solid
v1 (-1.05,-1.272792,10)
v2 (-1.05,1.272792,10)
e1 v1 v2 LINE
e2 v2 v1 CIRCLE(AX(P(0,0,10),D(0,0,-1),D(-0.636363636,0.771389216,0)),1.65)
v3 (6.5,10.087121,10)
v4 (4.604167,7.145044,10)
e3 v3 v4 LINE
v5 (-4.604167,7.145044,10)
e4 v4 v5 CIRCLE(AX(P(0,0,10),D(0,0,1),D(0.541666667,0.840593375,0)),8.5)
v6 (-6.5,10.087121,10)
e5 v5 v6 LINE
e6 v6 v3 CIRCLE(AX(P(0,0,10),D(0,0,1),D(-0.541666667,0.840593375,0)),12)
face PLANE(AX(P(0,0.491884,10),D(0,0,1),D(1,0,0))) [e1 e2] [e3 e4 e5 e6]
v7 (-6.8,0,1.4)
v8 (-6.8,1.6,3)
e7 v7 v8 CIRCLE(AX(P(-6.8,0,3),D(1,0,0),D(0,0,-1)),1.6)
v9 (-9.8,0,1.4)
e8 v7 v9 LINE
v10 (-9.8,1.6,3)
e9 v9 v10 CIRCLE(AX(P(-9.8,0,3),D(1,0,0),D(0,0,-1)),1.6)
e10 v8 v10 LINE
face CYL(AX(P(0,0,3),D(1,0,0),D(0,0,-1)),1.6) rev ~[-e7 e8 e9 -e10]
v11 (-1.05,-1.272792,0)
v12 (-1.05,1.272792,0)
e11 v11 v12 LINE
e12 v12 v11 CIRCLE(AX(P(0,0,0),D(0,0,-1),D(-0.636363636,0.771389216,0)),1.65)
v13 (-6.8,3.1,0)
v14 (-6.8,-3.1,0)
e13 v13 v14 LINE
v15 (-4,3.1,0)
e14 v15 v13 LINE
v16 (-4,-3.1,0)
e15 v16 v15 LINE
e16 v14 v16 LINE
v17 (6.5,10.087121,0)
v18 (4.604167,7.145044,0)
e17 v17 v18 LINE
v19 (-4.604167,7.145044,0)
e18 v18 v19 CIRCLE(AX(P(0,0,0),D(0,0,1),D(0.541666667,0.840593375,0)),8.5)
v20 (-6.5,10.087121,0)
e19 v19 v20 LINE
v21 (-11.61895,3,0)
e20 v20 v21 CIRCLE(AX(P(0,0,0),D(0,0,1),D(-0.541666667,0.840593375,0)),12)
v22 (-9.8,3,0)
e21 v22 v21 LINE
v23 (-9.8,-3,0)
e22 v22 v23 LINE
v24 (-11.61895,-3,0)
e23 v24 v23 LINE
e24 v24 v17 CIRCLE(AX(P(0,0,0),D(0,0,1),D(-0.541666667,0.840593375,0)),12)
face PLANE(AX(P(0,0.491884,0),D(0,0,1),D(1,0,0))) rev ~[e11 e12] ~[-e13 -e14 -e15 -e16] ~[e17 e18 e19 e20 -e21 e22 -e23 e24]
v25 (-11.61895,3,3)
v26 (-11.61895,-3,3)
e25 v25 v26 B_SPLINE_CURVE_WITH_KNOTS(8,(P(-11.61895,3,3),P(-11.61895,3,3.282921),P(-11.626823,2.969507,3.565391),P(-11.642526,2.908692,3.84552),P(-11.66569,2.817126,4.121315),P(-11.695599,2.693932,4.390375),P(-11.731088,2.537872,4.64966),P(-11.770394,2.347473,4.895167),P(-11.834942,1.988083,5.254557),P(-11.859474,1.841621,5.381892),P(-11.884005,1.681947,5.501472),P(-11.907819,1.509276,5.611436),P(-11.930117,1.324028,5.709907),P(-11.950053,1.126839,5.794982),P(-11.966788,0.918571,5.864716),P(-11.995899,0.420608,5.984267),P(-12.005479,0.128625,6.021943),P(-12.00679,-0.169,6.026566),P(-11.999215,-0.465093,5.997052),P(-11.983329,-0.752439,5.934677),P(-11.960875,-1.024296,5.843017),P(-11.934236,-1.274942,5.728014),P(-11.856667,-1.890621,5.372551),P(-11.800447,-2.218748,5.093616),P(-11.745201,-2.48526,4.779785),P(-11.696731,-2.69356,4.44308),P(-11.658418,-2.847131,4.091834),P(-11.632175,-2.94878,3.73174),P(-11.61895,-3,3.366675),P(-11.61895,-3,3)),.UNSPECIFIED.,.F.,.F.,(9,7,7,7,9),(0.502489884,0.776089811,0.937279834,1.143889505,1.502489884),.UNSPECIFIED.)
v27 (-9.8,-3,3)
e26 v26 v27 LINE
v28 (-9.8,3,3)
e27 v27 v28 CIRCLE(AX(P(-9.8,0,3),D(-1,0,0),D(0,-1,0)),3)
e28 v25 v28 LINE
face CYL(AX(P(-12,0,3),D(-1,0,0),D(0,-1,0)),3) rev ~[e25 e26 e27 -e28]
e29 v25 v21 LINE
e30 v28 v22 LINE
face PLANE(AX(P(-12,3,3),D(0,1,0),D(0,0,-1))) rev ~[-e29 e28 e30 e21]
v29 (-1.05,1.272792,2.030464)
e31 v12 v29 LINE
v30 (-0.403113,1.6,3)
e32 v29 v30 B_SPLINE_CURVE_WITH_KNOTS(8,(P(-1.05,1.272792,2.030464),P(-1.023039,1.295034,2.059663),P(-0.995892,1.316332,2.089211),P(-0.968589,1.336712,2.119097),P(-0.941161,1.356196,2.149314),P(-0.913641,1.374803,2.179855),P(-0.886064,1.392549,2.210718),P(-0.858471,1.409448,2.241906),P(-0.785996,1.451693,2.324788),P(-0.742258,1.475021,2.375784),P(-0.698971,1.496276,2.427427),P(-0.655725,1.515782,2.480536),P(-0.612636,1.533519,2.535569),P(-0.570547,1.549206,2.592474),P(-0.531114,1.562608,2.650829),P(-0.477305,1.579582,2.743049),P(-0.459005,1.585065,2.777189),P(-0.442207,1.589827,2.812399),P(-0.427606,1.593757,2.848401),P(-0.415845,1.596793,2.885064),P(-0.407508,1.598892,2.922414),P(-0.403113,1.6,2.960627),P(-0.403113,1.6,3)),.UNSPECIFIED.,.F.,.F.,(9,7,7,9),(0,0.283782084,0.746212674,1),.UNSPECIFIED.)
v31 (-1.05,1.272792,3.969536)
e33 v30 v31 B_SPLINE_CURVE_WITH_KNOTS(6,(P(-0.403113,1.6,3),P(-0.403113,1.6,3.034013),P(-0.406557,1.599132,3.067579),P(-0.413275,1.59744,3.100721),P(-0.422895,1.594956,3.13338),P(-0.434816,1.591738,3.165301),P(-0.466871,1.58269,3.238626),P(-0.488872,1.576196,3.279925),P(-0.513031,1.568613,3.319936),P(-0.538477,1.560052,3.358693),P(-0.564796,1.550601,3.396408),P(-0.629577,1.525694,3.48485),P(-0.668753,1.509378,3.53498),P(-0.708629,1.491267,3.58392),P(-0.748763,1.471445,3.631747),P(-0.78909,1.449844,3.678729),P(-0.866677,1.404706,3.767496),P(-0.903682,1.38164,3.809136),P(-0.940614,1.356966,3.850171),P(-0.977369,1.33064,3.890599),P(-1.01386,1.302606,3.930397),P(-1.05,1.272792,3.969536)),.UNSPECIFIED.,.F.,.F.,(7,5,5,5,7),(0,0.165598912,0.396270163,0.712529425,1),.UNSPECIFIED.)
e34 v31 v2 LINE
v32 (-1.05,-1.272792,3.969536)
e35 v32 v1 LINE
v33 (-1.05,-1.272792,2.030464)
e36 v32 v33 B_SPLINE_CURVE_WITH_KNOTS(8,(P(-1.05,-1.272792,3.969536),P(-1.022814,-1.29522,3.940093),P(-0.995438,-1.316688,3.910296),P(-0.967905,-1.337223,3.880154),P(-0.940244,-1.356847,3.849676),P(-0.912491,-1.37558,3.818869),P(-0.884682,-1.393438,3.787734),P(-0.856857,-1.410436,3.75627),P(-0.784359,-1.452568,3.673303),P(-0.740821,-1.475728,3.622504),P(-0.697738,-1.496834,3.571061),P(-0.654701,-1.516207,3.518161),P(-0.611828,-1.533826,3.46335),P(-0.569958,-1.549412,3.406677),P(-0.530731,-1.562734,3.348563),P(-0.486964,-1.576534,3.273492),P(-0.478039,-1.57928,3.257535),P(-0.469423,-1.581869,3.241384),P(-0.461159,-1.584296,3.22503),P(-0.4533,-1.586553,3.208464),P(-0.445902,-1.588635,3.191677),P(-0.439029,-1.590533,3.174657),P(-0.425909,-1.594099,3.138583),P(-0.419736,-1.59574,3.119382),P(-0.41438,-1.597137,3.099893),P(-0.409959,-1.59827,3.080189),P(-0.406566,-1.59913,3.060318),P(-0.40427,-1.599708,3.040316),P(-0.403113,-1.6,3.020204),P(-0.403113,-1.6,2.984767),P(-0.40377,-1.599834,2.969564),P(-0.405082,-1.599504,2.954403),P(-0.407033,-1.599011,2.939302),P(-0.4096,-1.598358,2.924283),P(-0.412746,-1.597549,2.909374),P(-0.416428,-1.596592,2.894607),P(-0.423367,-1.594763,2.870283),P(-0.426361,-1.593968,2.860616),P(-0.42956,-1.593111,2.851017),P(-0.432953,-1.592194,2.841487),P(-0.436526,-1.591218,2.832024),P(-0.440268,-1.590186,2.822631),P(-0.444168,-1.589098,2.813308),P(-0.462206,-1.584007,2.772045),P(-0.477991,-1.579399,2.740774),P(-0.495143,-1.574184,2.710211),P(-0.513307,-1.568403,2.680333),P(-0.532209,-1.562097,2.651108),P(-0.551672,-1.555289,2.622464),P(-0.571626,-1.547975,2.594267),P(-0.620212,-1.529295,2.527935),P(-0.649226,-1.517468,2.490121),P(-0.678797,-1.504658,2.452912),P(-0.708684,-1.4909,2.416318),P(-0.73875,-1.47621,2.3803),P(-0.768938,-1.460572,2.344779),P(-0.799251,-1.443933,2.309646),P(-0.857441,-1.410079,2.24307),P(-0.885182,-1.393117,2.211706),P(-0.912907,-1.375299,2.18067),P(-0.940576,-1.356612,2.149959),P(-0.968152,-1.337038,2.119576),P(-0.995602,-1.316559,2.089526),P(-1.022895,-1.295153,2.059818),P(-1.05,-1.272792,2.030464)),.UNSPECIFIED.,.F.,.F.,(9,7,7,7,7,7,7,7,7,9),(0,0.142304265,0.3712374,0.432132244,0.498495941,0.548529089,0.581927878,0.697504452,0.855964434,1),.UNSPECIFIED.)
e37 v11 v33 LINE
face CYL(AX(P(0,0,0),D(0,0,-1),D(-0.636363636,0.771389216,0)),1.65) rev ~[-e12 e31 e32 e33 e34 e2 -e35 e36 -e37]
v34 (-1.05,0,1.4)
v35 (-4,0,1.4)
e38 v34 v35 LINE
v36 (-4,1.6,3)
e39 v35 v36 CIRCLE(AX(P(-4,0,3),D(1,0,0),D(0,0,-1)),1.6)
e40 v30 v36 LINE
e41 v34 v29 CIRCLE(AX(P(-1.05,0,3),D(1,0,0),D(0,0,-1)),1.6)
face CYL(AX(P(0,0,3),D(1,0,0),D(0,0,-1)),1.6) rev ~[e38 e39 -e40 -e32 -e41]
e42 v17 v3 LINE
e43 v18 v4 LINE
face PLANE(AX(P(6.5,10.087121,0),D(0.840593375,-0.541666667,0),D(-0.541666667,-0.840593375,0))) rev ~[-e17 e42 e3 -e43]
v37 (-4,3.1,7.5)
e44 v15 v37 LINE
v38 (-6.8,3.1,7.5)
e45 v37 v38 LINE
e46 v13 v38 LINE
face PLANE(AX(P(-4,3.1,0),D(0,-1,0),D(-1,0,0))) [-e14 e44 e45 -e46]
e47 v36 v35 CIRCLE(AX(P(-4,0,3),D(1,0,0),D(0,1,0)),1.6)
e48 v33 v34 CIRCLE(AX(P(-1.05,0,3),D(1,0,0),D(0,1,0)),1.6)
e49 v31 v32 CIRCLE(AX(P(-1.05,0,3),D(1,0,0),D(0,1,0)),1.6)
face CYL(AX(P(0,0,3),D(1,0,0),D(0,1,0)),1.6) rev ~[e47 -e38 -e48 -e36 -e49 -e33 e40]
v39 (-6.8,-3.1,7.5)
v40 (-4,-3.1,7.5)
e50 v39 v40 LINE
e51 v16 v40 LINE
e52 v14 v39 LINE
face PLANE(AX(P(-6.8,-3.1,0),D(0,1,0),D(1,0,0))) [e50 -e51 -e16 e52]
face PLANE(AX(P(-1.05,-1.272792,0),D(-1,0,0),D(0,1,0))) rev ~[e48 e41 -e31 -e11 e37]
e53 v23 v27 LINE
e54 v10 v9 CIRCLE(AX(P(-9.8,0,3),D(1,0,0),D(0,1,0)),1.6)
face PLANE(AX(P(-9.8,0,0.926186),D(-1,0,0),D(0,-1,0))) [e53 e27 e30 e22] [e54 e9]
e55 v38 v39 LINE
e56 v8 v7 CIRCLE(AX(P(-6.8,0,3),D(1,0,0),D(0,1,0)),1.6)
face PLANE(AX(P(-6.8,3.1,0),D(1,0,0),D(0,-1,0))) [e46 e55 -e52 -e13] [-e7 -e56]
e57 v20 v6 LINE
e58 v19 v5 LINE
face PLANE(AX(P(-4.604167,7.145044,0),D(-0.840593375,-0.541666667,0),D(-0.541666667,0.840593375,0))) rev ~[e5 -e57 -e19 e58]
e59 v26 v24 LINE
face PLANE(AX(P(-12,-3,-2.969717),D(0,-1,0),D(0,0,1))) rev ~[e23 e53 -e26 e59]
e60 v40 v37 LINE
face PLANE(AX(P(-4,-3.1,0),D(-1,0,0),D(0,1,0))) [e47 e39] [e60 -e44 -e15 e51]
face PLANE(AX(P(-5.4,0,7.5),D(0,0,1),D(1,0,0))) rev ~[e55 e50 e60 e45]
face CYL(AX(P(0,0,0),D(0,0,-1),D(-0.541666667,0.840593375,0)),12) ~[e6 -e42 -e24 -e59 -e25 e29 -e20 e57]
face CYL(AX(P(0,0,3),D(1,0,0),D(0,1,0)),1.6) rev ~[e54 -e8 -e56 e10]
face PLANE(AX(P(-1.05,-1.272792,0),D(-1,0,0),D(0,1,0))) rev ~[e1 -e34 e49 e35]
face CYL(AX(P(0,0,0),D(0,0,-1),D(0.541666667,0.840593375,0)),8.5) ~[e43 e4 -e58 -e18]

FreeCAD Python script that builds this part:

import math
import FreeCAD as App
import Part
import Sketcher
from FreeCAD import Vector


def add_polygon(sketch, points):
    """Adds a closed chain of lines whose ends are joined by coincident constraints."""
    first, n = sketch.GeometryCount, len(points)
    for a, b in zip(points, points[1:] + points[:1]):
        sketch.addGeometry(Part.LineSegment(App.Vector(*a, 0), App.Vector(*b, 0)), False)
    for i in range(n):
        sketch.addConstraint(Sketcher.Constraint("Coincident", first + i, 2, first + (i + 1) % n, 1))

doc = App.newDocument("Part")
params = doc.addObject("Spreadsheet::Sheet", "Params")
for row, (alias, value) in enumerate([
    ("sketch1_radius", "12 mm"),
    ("sketch1_radius2", "8.5 mm"),
    ("sketch1_radius3", "1.65 mm"),
    ("pad1_length", "10 mm"),
    ("sketch2_width", "2.8 mm"),
    ("sketch2_height", "6.2 mm"),
    ("pocket1_length", "7.5 mm"),
    ("sketch3_radius", "1.6 mm"),
    ("pocket2_length", "25 mm"),
    ("sketch4_radius", "3 mm"),
    ("pocket3_length", "2.2 mm"),
], start=1):
    params.set(f"A{row}", alias)
    params.set(f"B{row}", "=" + value)
    params.setAlias(f"B{row}", alias)

body = doc.addObject("PartDesign::Body", "Body")

sketch1 = doc.addObject("Sketcher::SketchObject", "Sketch")
body.addObject(sketch1)
sketch1.AttachmentSupport = (doc.XY_Plane, [""])
sketch1.MapMode = "FlatFace"
sketch1.addGeometry([
    Part.LineSegment(Vector(-4.6, 7.1, 0), Vector(-6.5, 10.1, 0)),
    Part.ArcOfCircle(Part.Circle(Vector(0, 0, 0), Vector(0, 0, 1), 12), math.radians(123), math.radians(417)),
    Part.LineSegment(Vector(6.5, 10.1, 0), Vector(4.6, 7.1, 0)),
    Part.ArcOfCircle(Part.Circle(Vector(0, 0, 0), Vector(0, 0, 1), 8.5), math.radians(57), math.radians(123)),
    Part.LineSegment(Vector(-1.1, -1.3, 0), Vector(-1.1, 1.3, 0)),
    Part.ArcOfCircle(Part.Circle(Vector(0, 0, 0), Vector(0, 0, 1), 1.6), math.radians(-130), math.radians(130)),
], False)
sketch1.addConstraint([
    Sketcher.Constraint("Coincident", 0, 2, 1, 1),
    Sketcher.Constraint("Coincident", 1, 2, 2, 1),
    Sketcher.Constraint("Coincident", 2, 2, 3, 1),
    Sketcher.Constraint("Coincident", 3, 2, 0, 1),
    Sketcher.Constraint("Coincident", 4, 1, 5, 1),
    Sketcher.Constraint("Coincident", 5, 2, 4, 2),
    Sketcher.Constraint("Vertical", 4),
    Sketcher.Constraint("Coincident", 1, 3, -1, 1),
    Sketcher.Constraint("Coincident", 3, 3, -1, 1),
    Sketcher.Constraint("Coincident", 5, 3, -1, 1),
    Sketcher.Constraint("Horizontal", 0, 2, 1, 2),
    Sketcher.Constraint("Horizontal", 2, 2, 3, 2),
    Sketcher.Constraint("Radius", 1, 12.0),
    Sketcher.Constraint("Radius", 3, 8.5),
    Sketcher.Constraint("Radius", 5, 1.65),
    Sketcher.Constraint("DistanceX", 0, 2, 1, 2, 13.0),
    Sketcher.Constraint("DistanceX", 4, 1, -1, 1, 1.05),
    Sketcher.Constraint("DistanceY", 5, 2, 3, 2, 5.872251),
])
sketch1.setExpression("Constraints[12]", "Params.sketch1_radius")
sketch1.setExpression("Constraints[13]", "Params.sketch1_radius2")
sketch1.setExpression("Constraints[14]", "Params.sketch1_radius3")
pad1 = doc.addObject("PartDesign::Pad", "Pad")
body.addObject(pad1)
pad1.Profile = sketch1
pad1.setExpression("Length", "Params.pad1_length")

sketch2 = doc.addObject("Sketcher::SketchObject", "Sketch001")
body.addObject(sketch2)
sketch2.AttachmentSupport = (doc.XY_Plane, [""])
sketch2.MapMode = "FlatFace"
add_polygon(sketch2, [(-4, 3.1), (-6.8, 3.1), (-6.8, -3.1), (-4, -3.1)])
sketch2.addConstraint([
    Sketcher.Constraint("Horizontal", 0),
    Sketcher.Constraint("Vertical", 1),
    Sketcher.Constraint("Horizontal", 2),
    Sketcher.Constraint("Vertical", 3),
    Sketcher.Constraint("DistanceX", 0, 2, 0, 1, 2.8),
    Sketcher.Constraint("DistanceY", 1, 2, 1, 1, 6.2),
    Sketcher.Constraint("DistanceX", 2, 2, -1, 1, 4.0),
    Sketcher.Constraint("DistanceY", -1, 1, 0, 2, 3.1),
])
sketch2.setExpression("Constraints[8]", "Params.sketch2_width")
sketch2.setExpression("Constraints[9]", "Params.sketch2_height")
pocket1 = doc.addObject("PartDesign::Pocket", "Pocket")
body.addObject(pocket1)
pocket1.Profile = sketch2
pocket1.setExpression("Length", "Params.pocket1_length")
pocket1.Reversed = True

sketch3 = doc.addObject("Sketcher::SketchObject", "Sketch002")
body.addObject(sketch3)
sketch3.AttachmentSupport = (doc.YZ_Plane, [""])
sketch3.MapMode = "FlatFace"
sketch3.addGeometry([
    Part.ArcOfCircle(Part.Circle(Vector(0, 3, 0), Vector(0, 0, 1), 1.6), math.radians(-90), math.radians(0)),
    Part.ArcOfCircle(Part.Circle(Vector(0, 3, 0), Vector(0, 0, 1), 1.6), math.radians(0), math.radians(270)),
], False)
sketch3.addConstraint([
    Sketcher.Constraint("Tangent", 0, 1, 1, 2),
    Sketcher.Constraint("Coincident", 1, 1, 0, 2),
    Sketcher.Constraint("PointOnObject", 0, 3, -2),
    Sketcher.Constraint("PointOnObject", 0, 1, -2),
    Sketcher.Constraint("Horizontal", 0, 3, 1, 1),
    Sketcher.Constraint("Radius", 0, 1.6),
    Sketcher.Constraint("DistanceY", -1, 1, 0, 3, 3.0),
])
sketch3.setExpression("Constraints[5]", "Params.sketch3_radius")
pocket2 = doc.addObject("PartDesign::Pocket", "Pocket001")
body.addObject(pocket2)
pocket2.Profile = sketch3
pocket2.setExpression("Length", "Params.pocket2_length")

sketch4 = doc.addObject("Sketcher::SketchObject", "Sketch003")
body.addObject(sketch4)
sketch4.AttachmentSupport = (doc.YZ_Plane, [""])
sketch4.MapMode = "FlatFace"
sketch4.AttachmentOffset = App.Placement(Vector(0, 0, -12), App.Rotation())
sketch4.addGeometry([
    Part.LineSegment(Vector(-3, -3, 0), Vector(-3, 3, 0)),
    Part.ArcOfCircle(Part.Circle(Vector(0, 3, 0), Vector(0, 0, 1), 3), math.radians(0), math.radians(180)),
    Part.LineSegment(Vector(3, 3, 0), Vector(3, -3, 0)),
    Part.LineSegment(Vector(3, -3, 0), Vector(-3, -3, 0)),
], False)
sketch4.addConstraint([
    Sketcher.Constraint("Tangent", 0, 2, 1, 2),
    Sketcher.Constraint("Tangent", 1, 1, 2, 1),
    Sketcher.Constraint("Coincident", 2, 2, 3, 1),
    Sketcher.Constraint("Coincident", 3, 2, 0, 1),
    Sketcher.Constraint("Vertical", 0),
    Sketcher.Constraint("Vertical", 2),
    Sketcher.Constraint("Horizontal", 3),
    Sketcher.Constraint("PointOnObject", 1, 3, -2),
    Sketcher.Constraint("Radius", 1, 3.0),
    Sketcher.Constraint("DistanceY", -1, 1, 1, 3, 3.0),
    Sketcher.Constraint("DistanceY", 0, 1, 0, 2, 5.969717),
])
sketch4.setExpression("Constraints[8]", "Params.sketch4_radius")
pocket3 = doc.addObject("PartDesign::Pocket", "Pocket002")
body.addObject(pocket3)
pocket3.Profile = sketch4
pocket3.setExpression("Length", "Params.pocket3_length")
pocket3.Reversed = True

doc.recompute()
